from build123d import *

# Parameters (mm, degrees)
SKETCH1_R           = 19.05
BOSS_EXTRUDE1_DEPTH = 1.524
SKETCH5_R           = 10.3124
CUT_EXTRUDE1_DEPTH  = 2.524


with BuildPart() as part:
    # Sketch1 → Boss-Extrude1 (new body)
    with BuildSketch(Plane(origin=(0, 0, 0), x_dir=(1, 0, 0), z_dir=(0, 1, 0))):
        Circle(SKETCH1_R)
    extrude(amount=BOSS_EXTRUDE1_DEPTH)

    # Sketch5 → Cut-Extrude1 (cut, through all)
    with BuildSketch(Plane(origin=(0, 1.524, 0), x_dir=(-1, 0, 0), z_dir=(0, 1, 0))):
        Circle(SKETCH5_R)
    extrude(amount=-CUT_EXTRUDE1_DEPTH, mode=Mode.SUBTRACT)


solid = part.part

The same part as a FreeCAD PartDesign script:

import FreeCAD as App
import Part
import Sketcher

V = App.Vector
Q = App.Units.Quantity

doc = App.newDocument("Part")
body = doc.addObject("PartDesign::Body", "Body")

sketch1 = body.newObject("Sketcher::SketchObject", "Sketch")
sketch1.AttachmentSupport = (doc.getObject("XZ_Plane"), [""])
sketch1.MapMode = "FlatFace"
sketch1.addGeometry(Part.Circle(V(0, 0, 0), V(0, 0, 1), 19), False)
sketch1.addConstraint([
    Sketcher.Constraint("Coincident", 0, 3, -1, 1),
    Sketcher.Constraint("Diameter", 0, Q("1.5 in")),
])
pad1 = body.newObject("PartDesign::Pad", "Pad")
pad1.Profile = sketch1
pad1.Length = Q("0.06 in")
pad1.Reversed = True

sketch2 = body.newObject("Sketcher::SketchObject", "Sketch001")
sketch2.AttachmentSupport = (doc.getObject("XZ_Plane"), [""])
sketch2.MapMode = "FlatFace"
sketch2.AttachmentOffset = App.Placement(V(0, 0, -0.06 * 25.4), App.Rotation())
sketch2.addGeometry(Part.Circle(V(0, 0, 0), V(0, 0, 1), 10), False)
sketch2.addConstraint([
    Sketcher.Constraint("Coincident", 0, 3, -1, 1),
    Sketcher.Constraint("Diameter", 0, Q("0.812 in")),
])
pocket1 = body.newObject("PartDesign::Pocket", "Pocket")
pocket1.Profile = sketch2
pocket1.Type = "ThroughAll"
pocket1.Reversed = True

doc.recompute()
